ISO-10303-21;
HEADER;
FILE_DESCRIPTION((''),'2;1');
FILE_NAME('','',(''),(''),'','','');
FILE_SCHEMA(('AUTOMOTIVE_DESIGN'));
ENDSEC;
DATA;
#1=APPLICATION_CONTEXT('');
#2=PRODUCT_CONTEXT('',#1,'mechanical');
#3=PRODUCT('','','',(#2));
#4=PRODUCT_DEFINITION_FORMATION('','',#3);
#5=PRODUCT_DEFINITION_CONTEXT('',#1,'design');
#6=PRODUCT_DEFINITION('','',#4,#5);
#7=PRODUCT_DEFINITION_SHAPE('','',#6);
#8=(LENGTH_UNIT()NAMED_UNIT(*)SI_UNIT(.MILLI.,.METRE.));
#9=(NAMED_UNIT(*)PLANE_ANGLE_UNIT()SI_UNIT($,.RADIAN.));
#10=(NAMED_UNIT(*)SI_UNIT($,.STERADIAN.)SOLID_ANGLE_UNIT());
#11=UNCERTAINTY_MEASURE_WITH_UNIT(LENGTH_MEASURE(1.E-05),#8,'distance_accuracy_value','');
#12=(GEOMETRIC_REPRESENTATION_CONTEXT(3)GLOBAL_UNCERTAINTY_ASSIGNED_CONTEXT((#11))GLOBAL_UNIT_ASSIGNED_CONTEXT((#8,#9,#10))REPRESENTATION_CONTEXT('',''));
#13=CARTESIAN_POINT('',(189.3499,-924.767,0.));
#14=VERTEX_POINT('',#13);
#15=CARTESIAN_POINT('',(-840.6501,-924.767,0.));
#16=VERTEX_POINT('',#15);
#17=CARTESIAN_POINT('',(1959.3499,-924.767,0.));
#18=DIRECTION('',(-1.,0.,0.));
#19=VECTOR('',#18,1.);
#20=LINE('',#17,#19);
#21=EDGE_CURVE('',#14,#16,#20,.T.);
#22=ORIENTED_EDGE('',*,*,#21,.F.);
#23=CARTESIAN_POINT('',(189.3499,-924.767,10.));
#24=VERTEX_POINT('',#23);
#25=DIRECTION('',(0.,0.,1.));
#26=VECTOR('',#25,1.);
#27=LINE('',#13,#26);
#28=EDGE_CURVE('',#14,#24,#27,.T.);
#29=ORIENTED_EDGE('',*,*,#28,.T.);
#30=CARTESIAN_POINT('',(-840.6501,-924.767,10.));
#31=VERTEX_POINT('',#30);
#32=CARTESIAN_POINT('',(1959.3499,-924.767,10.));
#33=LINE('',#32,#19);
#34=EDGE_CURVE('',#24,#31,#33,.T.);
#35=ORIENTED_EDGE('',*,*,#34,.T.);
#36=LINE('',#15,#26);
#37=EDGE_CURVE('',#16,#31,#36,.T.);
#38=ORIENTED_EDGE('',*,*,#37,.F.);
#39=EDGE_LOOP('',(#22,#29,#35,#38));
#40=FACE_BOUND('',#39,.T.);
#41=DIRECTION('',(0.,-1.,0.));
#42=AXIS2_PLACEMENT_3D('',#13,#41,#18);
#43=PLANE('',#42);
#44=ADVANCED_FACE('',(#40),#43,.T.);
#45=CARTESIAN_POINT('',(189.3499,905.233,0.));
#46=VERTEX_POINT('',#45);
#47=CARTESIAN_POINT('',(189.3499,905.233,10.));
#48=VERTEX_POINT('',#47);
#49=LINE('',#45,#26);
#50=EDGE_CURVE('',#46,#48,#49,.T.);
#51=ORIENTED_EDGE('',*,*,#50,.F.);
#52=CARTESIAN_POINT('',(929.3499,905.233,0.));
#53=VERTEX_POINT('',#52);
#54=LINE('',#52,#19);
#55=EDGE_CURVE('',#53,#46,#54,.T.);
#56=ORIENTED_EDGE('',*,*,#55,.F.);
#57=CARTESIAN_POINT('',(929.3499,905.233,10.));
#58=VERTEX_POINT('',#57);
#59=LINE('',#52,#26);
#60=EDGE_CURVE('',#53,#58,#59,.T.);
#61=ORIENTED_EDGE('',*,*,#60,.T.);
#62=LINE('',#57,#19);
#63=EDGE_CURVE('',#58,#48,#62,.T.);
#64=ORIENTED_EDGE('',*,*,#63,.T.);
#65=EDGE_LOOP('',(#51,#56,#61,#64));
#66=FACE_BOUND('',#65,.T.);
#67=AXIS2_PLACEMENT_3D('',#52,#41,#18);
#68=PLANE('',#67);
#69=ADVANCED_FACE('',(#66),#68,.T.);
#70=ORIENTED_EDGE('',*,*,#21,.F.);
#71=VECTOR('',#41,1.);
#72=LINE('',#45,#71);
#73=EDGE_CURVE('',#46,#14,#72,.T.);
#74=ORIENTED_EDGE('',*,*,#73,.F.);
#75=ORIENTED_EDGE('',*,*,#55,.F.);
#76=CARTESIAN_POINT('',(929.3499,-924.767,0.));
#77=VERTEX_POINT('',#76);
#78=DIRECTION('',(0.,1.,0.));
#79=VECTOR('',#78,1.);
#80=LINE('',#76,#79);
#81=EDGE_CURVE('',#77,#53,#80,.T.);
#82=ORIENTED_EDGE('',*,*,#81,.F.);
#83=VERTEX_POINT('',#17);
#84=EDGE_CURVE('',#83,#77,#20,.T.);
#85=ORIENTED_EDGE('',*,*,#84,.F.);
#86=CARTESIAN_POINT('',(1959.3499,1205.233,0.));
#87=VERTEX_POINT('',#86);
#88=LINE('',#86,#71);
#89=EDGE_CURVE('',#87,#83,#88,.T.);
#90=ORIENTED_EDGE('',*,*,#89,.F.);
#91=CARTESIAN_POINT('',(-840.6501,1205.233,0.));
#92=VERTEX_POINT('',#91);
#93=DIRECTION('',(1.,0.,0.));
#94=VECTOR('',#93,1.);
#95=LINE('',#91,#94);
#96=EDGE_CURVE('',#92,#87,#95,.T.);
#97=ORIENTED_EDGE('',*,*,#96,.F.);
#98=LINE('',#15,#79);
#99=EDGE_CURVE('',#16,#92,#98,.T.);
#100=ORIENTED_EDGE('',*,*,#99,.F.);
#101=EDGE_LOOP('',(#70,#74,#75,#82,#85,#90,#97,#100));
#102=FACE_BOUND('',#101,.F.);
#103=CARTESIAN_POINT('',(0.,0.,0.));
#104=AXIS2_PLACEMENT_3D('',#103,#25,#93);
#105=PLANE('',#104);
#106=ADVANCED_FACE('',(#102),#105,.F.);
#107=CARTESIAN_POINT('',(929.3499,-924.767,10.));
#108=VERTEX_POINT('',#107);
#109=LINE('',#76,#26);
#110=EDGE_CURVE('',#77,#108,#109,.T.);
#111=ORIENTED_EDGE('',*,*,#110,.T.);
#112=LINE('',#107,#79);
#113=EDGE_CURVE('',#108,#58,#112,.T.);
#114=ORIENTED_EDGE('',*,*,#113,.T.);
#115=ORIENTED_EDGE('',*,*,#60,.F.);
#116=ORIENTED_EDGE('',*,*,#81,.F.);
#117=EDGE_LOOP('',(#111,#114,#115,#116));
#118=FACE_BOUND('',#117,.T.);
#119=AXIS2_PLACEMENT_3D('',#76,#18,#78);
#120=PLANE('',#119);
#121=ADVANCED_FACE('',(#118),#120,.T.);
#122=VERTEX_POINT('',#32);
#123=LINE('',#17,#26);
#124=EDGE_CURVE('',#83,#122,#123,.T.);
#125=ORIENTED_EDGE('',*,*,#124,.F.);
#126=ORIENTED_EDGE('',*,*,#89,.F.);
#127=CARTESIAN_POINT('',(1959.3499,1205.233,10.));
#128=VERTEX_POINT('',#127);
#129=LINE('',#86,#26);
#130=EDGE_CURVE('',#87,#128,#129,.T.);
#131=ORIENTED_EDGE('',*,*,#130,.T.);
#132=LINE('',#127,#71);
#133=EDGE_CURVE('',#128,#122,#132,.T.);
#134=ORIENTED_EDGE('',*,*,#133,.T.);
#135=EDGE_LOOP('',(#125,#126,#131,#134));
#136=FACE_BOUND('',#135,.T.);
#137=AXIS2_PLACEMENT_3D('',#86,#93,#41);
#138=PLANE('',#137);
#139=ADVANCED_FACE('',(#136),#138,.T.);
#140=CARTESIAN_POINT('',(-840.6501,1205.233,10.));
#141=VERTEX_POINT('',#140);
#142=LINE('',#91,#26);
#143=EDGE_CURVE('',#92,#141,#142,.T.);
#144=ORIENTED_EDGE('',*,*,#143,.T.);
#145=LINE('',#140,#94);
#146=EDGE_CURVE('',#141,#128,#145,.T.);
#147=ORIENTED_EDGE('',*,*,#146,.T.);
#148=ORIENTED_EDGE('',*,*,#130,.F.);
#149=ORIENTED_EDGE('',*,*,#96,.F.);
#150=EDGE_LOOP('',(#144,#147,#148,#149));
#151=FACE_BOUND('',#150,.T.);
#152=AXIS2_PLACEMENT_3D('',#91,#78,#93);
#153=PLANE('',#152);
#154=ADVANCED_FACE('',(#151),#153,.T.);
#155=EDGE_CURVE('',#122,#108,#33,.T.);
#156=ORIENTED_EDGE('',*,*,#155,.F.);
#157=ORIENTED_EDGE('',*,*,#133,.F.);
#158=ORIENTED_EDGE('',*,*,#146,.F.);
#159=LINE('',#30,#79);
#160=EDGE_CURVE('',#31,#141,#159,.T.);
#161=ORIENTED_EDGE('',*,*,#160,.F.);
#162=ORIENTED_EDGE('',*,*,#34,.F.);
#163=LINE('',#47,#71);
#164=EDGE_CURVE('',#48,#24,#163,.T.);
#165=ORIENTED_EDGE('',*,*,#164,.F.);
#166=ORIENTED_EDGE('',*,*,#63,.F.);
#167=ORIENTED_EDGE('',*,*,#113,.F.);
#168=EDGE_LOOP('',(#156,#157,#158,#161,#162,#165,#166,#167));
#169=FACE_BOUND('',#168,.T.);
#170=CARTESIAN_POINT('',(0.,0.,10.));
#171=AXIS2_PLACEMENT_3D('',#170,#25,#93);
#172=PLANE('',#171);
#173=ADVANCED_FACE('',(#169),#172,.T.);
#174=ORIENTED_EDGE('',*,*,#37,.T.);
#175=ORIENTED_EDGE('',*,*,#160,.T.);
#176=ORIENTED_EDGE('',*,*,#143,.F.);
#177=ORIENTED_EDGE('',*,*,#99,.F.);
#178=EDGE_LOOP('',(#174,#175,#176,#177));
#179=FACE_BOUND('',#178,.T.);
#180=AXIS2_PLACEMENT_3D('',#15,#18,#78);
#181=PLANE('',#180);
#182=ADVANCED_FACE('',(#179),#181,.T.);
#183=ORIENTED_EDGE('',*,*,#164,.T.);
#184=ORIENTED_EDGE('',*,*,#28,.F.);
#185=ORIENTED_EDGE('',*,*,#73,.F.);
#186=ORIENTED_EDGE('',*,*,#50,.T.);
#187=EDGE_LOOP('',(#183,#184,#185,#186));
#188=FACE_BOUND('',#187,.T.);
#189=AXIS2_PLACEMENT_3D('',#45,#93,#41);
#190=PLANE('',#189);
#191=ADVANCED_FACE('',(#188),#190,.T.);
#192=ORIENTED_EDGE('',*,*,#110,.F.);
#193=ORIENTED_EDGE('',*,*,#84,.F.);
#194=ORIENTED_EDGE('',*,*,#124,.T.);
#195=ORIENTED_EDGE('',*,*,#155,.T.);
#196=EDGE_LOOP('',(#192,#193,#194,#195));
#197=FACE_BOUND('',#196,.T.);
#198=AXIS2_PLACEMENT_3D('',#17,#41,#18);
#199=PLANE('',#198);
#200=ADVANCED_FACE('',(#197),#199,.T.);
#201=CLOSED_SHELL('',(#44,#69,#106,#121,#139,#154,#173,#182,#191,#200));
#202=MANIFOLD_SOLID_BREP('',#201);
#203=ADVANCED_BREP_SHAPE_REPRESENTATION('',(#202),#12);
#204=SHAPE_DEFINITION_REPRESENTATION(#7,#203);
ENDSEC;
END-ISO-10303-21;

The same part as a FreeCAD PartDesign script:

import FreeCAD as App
import Part
import Sketcher
Q = App.Units.Quantity


def add_polygon(sketch, points):
    """Adds a closed chain of lines whose ends are joined by coincident constraints."""
    first, n = sketch.GeometryCount, len(points)
    for a, b in zip(points, points[1:] + points[:1]):
        sketch.addGeometry(Part.LineSegment(App.Vector(*a, 0), App.Vector(*b, 0)), False)
    for i in range(n):
        sketch.addConstraint(Sketcher.Constraint("Coincident", first + i, 2, first + (i + 1) % n, 1))

doc = App.newDocument("Part")
params = doc.addObject("Spreadsheet::Sheet", "Params")
for row, (alias, value) in enumerate([
    ("sketch1_width", "2800 mm"),
    ("sketch1_width2", "1030 mm"),
    ("sketch1_height", "2130 mm"),
    ("sketch1_height2", "1830 mm"),
    ("pad1_length", "10 mm"),
], start=1):
    params.set(f"A{row}", alias)
    params.set(f"B{row}", "=" + value)
    params.setAlias(f"B{row}", alias)

body = doc.addObject("PartDesign::Body", "Body")

# Sketch on XY plane
sketch1 = body.newObject("Sketcher::SketchObject", "Sketch")
sketch1.AttachmentSupport = (doc.getObject("XY_Plane"), [""])
sketch1.MapMode = "FlatFace"
add_polygon(sketch1, [(1959, 1205), (-841, 1205), (-841, -925), (189, -925), (189, 905), (929, 905), (929, -925), (1959, -925)])  # lines 0-7
sketch1.addConstraint([
    Sketcher.Constraint("Horizontal", 0),
    Sketcher.Constraint("Vertical", 1),
    Sketcher.Constraint("Horizontal", 2),
    Sketcher.Constraint("Vertical", 3),
    Sketcher.Constraint("Horizontal", 4),
    Sketcher.Constraint("Vertical", 5),
    Sketcher.Constraint("Horizontal", 6),
    Sketcher.Constraint("Vertical", 7),
    Sketcher.Constraint("Horizontal", 2, 2, 5, 2),
    Sketcher.Constraint("Equal", 2, 6),
    Sketcher.Constraint("DistanceX", 0, 2, 0, 1, Q("2800 mm")),
    Sketcher.Constraint("DistanceX", 2, 1, 2, 2, Q("1030 mm")),
    Sketcher.Constraint("DistanceY", 1, 2, 1, 1, Q("2130 mm")),
    Sketcher.Constraint("DistanceY", 3, 1, 3, 2, Q("1830 mm")),
    Sketcher.Constraint("DistanceX", 0, 2, -1, 1, Q("840.65 mm")),
    Sketcher.Constraint("DistanceY", -1, 1, 0, 2, Q("1205.233 mm")),
])
sketch1.setExpression("Constraints[18]", "Params.sketch1_width")
sketch1.setExpression("Constraints[19]", "Params.sketch1_width2")
sketch1.setExpression("Constraints[20]", "Params.sketch1_height")
sketch1.setExpression("Constraints[21]", "Params.sketch1_height2")
pad1 = body.newObject("PartDesign::Pad", "Pad")
pad1.Profile = sketch1
pad1.setExpression("Length", "Params.pad1_length")

doc.recompute()
